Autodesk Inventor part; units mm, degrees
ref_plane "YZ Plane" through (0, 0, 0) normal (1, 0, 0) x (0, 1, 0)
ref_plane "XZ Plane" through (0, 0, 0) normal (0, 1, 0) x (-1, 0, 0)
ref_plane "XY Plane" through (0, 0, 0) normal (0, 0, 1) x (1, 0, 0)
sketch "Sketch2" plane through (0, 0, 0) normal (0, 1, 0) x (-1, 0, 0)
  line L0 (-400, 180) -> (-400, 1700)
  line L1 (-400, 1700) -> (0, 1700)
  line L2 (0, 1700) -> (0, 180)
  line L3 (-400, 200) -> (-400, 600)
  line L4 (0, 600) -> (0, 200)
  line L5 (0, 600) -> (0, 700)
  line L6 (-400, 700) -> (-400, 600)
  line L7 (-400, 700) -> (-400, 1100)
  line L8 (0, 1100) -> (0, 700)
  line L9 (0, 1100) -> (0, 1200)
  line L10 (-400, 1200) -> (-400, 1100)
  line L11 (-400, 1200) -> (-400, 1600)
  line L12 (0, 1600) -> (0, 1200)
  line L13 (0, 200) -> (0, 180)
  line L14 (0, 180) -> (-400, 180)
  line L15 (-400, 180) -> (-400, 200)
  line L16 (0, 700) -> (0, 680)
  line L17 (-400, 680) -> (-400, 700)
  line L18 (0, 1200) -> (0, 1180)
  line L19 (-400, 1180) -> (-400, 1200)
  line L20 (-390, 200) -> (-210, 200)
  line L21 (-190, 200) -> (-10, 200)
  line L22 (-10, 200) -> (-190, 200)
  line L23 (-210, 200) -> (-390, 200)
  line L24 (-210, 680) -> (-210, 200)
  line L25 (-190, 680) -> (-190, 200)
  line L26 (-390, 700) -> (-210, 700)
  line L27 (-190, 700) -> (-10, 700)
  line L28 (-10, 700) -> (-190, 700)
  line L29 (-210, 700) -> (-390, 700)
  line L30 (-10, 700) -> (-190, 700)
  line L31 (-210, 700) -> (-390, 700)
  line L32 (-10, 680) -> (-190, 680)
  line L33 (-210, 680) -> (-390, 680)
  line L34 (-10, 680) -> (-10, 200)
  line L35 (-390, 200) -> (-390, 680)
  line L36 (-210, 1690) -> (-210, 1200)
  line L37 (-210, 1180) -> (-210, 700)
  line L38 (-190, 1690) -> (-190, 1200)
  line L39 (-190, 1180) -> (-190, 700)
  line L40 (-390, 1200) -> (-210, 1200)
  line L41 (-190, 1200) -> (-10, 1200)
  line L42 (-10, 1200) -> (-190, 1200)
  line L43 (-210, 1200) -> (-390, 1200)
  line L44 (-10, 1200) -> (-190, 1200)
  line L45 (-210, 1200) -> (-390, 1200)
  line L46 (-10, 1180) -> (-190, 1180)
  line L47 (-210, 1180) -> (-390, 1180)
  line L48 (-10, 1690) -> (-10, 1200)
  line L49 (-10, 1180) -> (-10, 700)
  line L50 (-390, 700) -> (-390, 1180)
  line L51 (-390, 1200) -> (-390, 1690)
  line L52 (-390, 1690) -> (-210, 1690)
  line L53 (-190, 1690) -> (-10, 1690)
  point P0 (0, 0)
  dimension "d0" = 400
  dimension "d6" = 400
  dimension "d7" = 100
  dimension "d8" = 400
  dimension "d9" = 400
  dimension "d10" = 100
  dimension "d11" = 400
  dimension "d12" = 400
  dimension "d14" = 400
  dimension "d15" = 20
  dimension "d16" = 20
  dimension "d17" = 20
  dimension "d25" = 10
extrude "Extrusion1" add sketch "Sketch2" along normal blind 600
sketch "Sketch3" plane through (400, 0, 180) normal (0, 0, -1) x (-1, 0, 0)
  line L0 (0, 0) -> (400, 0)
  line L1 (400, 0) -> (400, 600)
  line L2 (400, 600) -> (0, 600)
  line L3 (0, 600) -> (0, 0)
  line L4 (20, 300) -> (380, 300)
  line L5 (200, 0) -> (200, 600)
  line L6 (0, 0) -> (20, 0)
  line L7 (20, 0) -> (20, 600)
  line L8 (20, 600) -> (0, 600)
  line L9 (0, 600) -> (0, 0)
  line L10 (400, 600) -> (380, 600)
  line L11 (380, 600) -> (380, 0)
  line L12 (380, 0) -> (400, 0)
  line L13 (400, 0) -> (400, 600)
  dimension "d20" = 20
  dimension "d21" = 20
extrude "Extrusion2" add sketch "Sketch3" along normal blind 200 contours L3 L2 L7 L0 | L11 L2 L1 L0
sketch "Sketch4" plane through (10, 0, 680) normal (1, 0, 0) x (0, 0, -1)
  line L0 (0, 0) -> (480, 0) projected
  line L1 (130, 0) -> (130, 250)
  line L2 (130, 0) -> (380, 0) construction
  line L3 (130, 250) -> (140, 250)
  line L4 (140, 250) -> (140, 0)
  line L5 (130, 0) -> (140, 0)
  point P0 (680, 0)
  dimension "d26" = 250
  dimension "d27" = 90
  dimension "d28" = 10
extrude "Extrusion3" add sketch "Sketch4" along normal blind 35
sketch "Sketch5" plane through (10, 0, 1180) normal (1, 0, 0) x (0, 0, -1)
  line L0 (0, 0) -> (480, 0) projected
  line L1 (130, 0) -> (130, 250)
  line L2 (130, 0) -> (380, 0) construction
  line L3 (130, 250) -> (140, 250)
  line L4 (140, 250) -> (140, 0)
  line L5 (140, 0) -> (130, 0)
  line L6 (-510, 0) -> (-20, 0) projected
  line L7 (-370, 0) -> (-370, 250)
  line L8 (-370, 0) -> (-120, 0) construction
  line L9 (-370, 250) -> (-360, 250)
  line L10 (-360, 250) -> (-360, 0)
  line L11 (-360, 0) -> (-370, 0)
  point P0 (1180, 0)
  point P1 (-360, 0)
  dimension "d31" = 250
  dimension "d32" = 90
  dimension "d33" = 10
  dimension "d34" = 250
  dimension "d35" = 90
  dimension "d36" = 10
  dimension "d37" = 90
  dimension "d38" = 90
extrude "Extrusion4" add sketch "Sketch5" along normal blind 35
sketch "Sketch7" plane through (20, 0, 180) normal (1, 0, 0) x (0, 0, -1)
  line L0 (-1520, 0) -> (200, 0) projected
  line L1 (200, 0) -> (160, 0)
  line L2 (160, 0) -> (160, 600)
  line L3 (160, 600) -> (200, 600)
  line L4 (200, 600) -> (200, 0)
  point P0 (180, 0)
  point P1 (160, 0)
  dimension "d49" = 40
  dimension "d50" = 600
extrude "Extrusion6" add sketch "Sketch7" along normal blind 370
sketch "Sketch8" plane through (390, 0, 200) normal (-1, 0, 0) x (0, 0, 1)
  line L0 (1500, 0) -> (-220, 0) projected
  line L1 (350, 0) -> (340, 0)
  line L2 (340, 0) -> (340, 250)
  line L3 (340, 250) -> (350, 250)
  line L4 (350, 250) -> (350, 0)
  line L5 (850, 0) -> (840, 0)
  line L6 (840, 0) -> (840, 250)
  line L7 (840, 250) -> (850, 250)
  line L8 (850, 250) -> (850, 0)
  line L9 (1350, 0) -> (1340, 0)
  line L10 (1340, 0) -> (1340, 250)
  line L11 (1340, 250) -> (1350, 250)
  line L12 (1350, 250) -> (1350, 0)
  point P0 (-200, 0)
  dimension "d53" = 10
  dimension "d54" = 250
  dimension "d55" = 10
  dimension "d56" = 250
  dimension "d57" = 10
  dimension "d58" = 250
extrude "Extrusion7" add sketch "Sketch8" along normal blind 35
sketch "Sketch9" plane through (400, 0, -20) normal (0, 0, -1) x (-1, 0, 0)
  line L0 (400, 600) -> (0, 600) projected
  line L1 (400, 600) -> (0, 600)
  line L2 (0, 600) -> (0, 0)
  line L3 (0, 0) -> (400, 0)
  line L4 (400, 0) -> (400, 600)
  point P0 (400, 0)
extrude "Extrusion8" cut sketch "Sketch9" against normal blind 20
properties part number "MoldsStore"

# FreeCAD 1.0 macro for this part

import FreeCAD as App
import Part
import Sketcher
from FreeCAD import Vector


def add_polygon(sketch, points):
    """Adds a closed chain of lines whose ends are joined by coincident constraints."""
    first, n = sketch.GeometryCount, len(points)
    for a, b in zip(points, points[1:] + points[:1]):
        sketch.addGeometry(Part.LineSegment(App.Vector(*a, 0), App.Vector(*b, 0)), False)
    for i in range(n):
        sketch.addConstraint(Sketcher.Constraint("Coincident", first + i, 2, first + (i + 1) % n, 1))

doc = App.newDocument("Part")
body = doc.addObject("PartDesign::Body", "Body")

# Sketch on XZ plane
sketch1 = doc.addObject("Sketcher::SketchObject", "Sketch")
body.addObject(sketch1)
sketch1.AttachmentSupport = (doc.XZ_Plane, [""])
sketch1.MapMode = "FlatFace"
add_polygon(sketch1, [(400, 1700), (400, 180), (0, 180), (0, 1700)])  # lines 0-3
add_polygon(sketch1, [(210, 200), (390, 200), (390, 680), (210, 680)])  # lines 4-7
add_polygon(sketch1, [(10, 200), (190, 200), (190, 680), (10, 680)])  # lines 8-11
add_polygon(sketch1, [(210, 700), (390, 700), (390, 1180), (210, 1180)])  # lines 12-15
add_polygon(sketch1, [(390, 1690), (210, 1690), (210, 1200), (390, 1200)])  # lines 16-19
add_polygon(sketch1, [(10, 700), (190, 700), (190, 1180), (10, 1180)])  # lines 20-23
add_polygon(sketch1, [(190, 1200), (190, 1690), (10, 1690), (10, 1200)])  # lines 24-27
sketch1.addConstraint([
    Sketcher.Constraint("Vertical", 0),
    Sketcher.Constraint("Horizontal", 1),
    Sketcher.Constraint("Vertical", 2),
    Sketcher.Constraint("Horizontal", 3),
    Sketcher.Constraint("Horizontal", 4),
    Sketcher.Constraint("Vertical", 5),
    Sketcher.Constraint("Horizontal", 6),
    Sketcher.Constraint("Vertical", 7),
    Sketcher.Constraint("Horizontal", 8),
    Sketcher.Constraint("Vertical", 9),
    Sketcher.Constraint("Horizontal", 10),
    Sketcher.Constraint("Vertical", 11),
    Sketcher.Constraint("Horizontal", 12),
    Sketcher.Constraint("Vertical", 13),
    Sketcher.Constraint("Horizontal", 14),
    Sketcher.Constraint("Vertical", 15),
    Sketcher.Constraint("Horizontal", 16),
    Sketcher.Constraint("Vertical", 17),
    Sketcher.Constraint("Horizontal", 18),
    Sketcher.Constraint("Vertical", 19),
    Sketcher.Constraint("Horizontal", 20),
    Sketcher.Constraint("Vertical", 21),
    Sketcher.Constraint("Horizontal", 22),
    Sketcher.Constraint("Vertical", 23),
    Sketcher.Constraint("Vertical", 24),
    Sketcher.Constraint("Horizontal", 25),
    Sketcher.Constraint("Vertical", 26),
    Sketcher.Constraint("Horizontal", 27),
    Sketcher.Constraint("PointOnObject", 1, 2, -2),
    Sketcher.Constraint("Horizontal", 7, 2, 8, 2),
    Sketcher.Constraint("Horizontal", 6, 2, 9, 2),
    Sketcher.Constraint("Horizontal", 15, 2, 20, 2),
    Sketcher.Constraint("Horizontal", 14, 2, 21, 2),
    Sketcher.Constraint("Horizontal", 19, 2, 24, 2),
    Sketcher.Constraint("Horizontal", 18, 2, 26, 2),
    Sketcher.Constraint("Vertical", 5, 2, 12, 2),
    Sketcher.Constraint("Vertical", 7, 2, 14, 2),
    Sketcher.Constraint("Vertical", 15, 2, 16, 2),
    Sketcher.Constraint("Vertical", 13, 2, 18, 2),
    Sketcher.Constraint("Vertical", 9, 2, 20, 2),
    Sketcher.Constraint("Vertical", 11, 2, 22, 2),
    Sketcher.Constraint("Vertical", 21, 2, 24, 2),
    Sketcher.Constraint("Vertical", 23, 2, 25, 2),
    Sketcher.Constraint("Equal", 6, 8),
    Sketcher.Constraint("Equal", 11, 13),
    Sketcher.Constraint("DistanceX", 1, 2, 1, 1, 400.0),
    Sketcher.Constraint("DistanceX", -1, 1, 10, 2, 10.0),
    Sketcher.Constraint("DistanceX", 4, 2, 0, 2, 10.0),
    Sketcher.Constraint("DistanceY", 0, 2, 4, 2, 20.0),
    Sketcher.Constraint("DistanceX", 8, 2, 7, 2, 20.0),
    Sketcher.Constraint("DistanceY", 5, 2, 12, 2, 20.0),
    Sketcher.Constraint("DistanceY", 16, 2, 3, 2, 10.0),
    Sketcher.Constraint("DistanceY", 14, 2, 17, 2, 20.0),
    Sketcher.Constraint("DistanceY", 0, 2, 0, 1, 1520.0),
    Sketcher.Constraint("DistanceY", 5, 1, 5, 2, 480.0),
    Sketcher.Constraint("DistanceY", -1, 1, 0, 2, 180.0),
])
pad1 = doc.addObject("PartDesign::Pad", "Pad")
body.addObject(pad1)
pad1.Profile = sketch1
pad1.Length = 600
pad1.Reversed = True

# Sketch on XY plane
sketch2 = doc.addObject("Sketcher::SketchObject", "Sketch001")
body.addObject(sketch2)
sketch2.AttachmentSupport = (doc.XY_Plane, [""])
sketch2.MapMode = "FlatFace"
sketch2.AttachmentOffset = App.Placement(Vector(0, 0, 180), App.Rotation())
add_polygon(sketch2, [(400, 600), (400, 0), (380, 0), (380, 600)])  # lines 0-3
add_polygon(sketch2, [(20, 600), (20, 0), (0, 0), (0, 600)])  # lines 4-7
sketch2.addConstraint([
    Sketcher.Constraint("Vertical", 0),
    Sketcher.Constraint("Horizontal", 1),
    Sketcher.Constraint("Vertical", 2),
    Sketcher.Constraint("Horizontal", 3),
    Sketcher.Constraint("Vertical", 4),
    Sketcher.Constraint("Horizontal", 5),
    Sketcher.Constraint("Vertical", 6),
    Sketcher.Constraint("Horizontal", 7),
    Sketcher.Constraint("Coincident", 5, 2, -1, 1),
    Sketcher.Constraint("PointOnObject", 0, 2, -1),
    Sketcher.Constraint("Horizontal", 3, 2, 6, 2),
    Sketcher.Constraint("Equal", 3, 5),
    Sketcher.Constraint("DistanceX", 1, 2, 1, 1, 20.0),
    Sketcher.Constraint("DistanceY", 0, 2, 0, 1, 600.0),
    Sketcher.Constraint("DistanceX", -1, 1, 0, 2, 400.0),
])
pad2 = doc.addObject("PartDesign::Pad", "Pad001")
body.addObject(pad2)
pad2.Profile = sketch2
pad2.Length = 200
pad2.Reversed = True

# Sketch on YZ plane
sketch3 = doc.addObject("Sketcher::SketchObject", "Sketch002")
body.addObject(sketch3)
sketch3.AttachmentSupport = (doc.YZ_Plane, [""])
sketch3.MapMode = "FlatFace"
sketch3.AttachmentOffset = App.Placement(Vector(0, 0, 10), App.Rotation())
add_polygon(sketch3, [(250, 550), (0, 550), (0, 540), (250, 540)])  # lines 0-3
sketch3.addConstraint([
    Sketcher.Constraint("Horizontal", 0),
    Sketcher.Constraint("Vertical", 1),
    Sketcher.Constraint("Horizontal", 2),
    Sketcher.Constraint("Vertical", 3),
    Sketcher.Constraint("PointOnObject", 0, 2, -2),
    Sketcher.Constraint("DistanceX", 0, 2, 0, 1, 250.0),
    Sketcher.Constraint("DistanceY", 1, 2, 1, 1, 10.0),
    Sketcher.Constraint("DistanceY", -1, 1, 0, 2, 550.0),
])
pad3 = doc.addObject("PartDesign::Pad", "Pad002")
body.addObject(pad3)
pad3.Profile = sketch3
pad3.Length = 35

# Sketch on YZ plane
sketch4 = doc.addObject("Sketcher::SketchObject", "Sketch003")
body.addObject(sketch4)
sketch4.AttachmentSupport = (doc.YZ_Plane, [""])
sketch4.MapMode = "FlatFace"
sketch4.AttachmentOffset = App.Placement(Vector(0, 0, 10), App.Rotation())
add_polygon(sketch4, [(250, 1050), (0, 1050), (0, 1040), (250, 1040)])  # lines 0-3
add_polygon(sketch4, [(250, 1550), (0, 1550), (0, 1540), (250, 1540)])  # lines 4-7
sketch4.addConstraint([
    Sketcher.Constraint("Horizontal", 0),
    Sketcher.Constraint("Vertical", 1),
    Sketcher.Constraint("Horizontal", 2),
    Sketcher.Constraint("Vertical", 3),
    Sketcher.Constraint("Horizontal", 4),
    Sketcher.Constraint("Vertical", 5),
    Sketcher.Constraint("Horizontal", 6),
    Sketcher.Constraint("Vertical", 7),
    Sketcher.Constraint("PointOnObject", 0, 2, -2),
    Sketcher.Constraint("PointOnObject", 4, 2, -2),
    Sketcher.Constraint("Vertical", 3, 2, 6, 2),
    Sketcher.Constraint("Equal", 3, 5),
    Sketcher.Constraint("DistanceX", 0, 2, 0, 1, 250.0),
    Sketcher.Constraint("DistanceY", 1, 2, 1, 1, 10.0),
    Sketcher.Constraint("DistanceY", -1, 1, 0, 2, 1050.0),
    Sketcher.Constraint("DistanceY", -1, 1, 4, 2, 1550.0),
])
pad4 = doc.addObject("PartDesign::Pad", "Pad003")
body.addObject(pad4)
pad4.Profile = sketch4
pad4.Length = 35

# Sketch on YZ plane
sketch5 = doc.addObject("Sketcher::SketchObject", "Sketch004")
body.addObject(sketch5)
sketch5.AttachmentSupport = (doc.YZ_Plane, [""])
sketch5.MapMode = "FlatFace"
sketch5.AttachmentOffset = App.Placement(Vector(0, 0, 20), App.Rotation())
add_polygon(sketch5, [(600, 20), (0, 20), (0, -20), (600, -20)])  # lines 0-3
sketch5.addConstraint([
    Sketcher.Constraint("Horizontal", 0),
    Sketcher.Constraint("Vertical", 1),
    Sketcher.Constraint("Horizontal", 2),
    Sketcher.Constraint("Vertical", 3),
    Sketcher.Constraint("Symmetric", 0, 2, 1, 2, -1, 1),
    Sketcher.Constraint("DistanceX", 0, 2, 0, 1, 600.0),
    Sketcher.Constraint("DistanceY", 1, 2, 1, 1, 40.0),
])
pad5 = doc.addObject("PartDesign::Pad", "Pad004")
body.addObject(pad5)
pad5.Profile = sketch5
pad5.Length = 370

# Sketch on YZ plane
sketch6 = doc.addObject("Sketcher::SketchObject", "Sketch005")
body.addObject(sketch6)
sketch6.AttachmentSupport = (doc.YZ_Plane, [""])
sketch6.MapMode = "FlatFace"
sketch6.AttachmentOffset = App.Placement(Vector(0, 0, 390), App.Rotation())
add_polygon(sketch6, [(0, 540), (0, 550), (250, 550), (250, 540)])  # lines 0-3
add_polygon(sketch6, [(0, 1040), (0, 1050), (250, 1050), (250, 1040)])  # lines 4-7
add_polygon(sketch6, [(0, 1540), (0, 1550), (250, 1550), (250, 1540)])  # lines 8-11
sketch6.addConstraint([
    Sketcher.Constraint("Vertical", 0),
    Sketcher.Constraint("Horizontal", 1),
    Sketcher.Constraint("Vertical", 2),
    Sketcher.Constraint("Horizontal", 3),
    Sketcher.Constraint("Vertical", 4),
    Sketcher.Constraint("Horizontal", 5),
    Sketcher.Constraint("Vertical", 6),
    Sketcher.Constraint("Horizontal", 7),
    Sketcher.Constraint("Vertical", 8),
    Sketcher.Constraint("Horizontal", 9),
    Sketcher.Constraint("Vertical", 10),
    Sketcher.Constraint("Horizontal", 11),
    Sketcher.Constraint("PointOnObject", 0, 2, -2),
    Sketcher.Constraint("PointOnObject", 4, 2, -2),
    Sketcher.Constraint("PointOnObject", 8, 2, -2),
    Sketcher.Constraint("Vertical", 2, 2, 5, 2),
    Sketcher.Constraint("Vertical", 6, 2, 9, 2),
    Sketcher.Constraint("Equal", 2, 4),
    Sketcher.Constraint("Equal", 6, 8),
    Sketcher.Constraint("DistanceX", 1, 1, 1, 2, 250.0),
    Sketcher.Constraint("DistanceY", 0, 1, 0, 2, 10.0),
    Sketcher.Constraint("DistanceY", -1, 1, 0, 2, 550.0),
    Sketcher.Constraint("DistanceY", -1, 1, 4, 2, 1050.0),
    Sketcher.Constraint("DistanceY", -1, 1, 8, 2, 1550.0),
])
pad6 = doc.addObject("PartDesign::Pad", "Pad005")
body.addObject(pad6)
pad6.Profile = sketch6
pad6.Length = 35
pad6.Reversed = True

# Sketch on XY plane
sketch7 = doc.addObject("Sketcher::SketchObject", "Sketch006")
body.addObject(sketch7)
sketch7.AttachmentSupport = (doc.XY_Plane, [""])
sketch7.MapMode = "FlatFace"
sketch7.AttachmentOffset = App.Placement(Vector(0, 0, -20), App.Rotation())
add_polygon(sketch7, [(0, 0), (0, 600), (400, 600), (400, 0)])  # lines 0-3
sketch7.addConstraint([
    Sketcher.Constraint("Vertical", 0),
    Sketcher.Constraint("Horizontal", 1),
    Sketcher.Constraint("Vertical", 2),
    Sketcher.Constraint("Horizontal", 3),
    Sketcher.Constraint("Coincident", 3, 2, -1, 1),
    Sketcher.Constraint("DistanceX", 1, 1, 1, 2, 400.0),
    Sketcher.Constraint("DistanceY", 0, 1, 0, 2, 600.0),
])
pocket1 = doc.addObject("PartDesign::Pocket", "Pocket")
body.addObject(pocket1)
pocket1.Profile = sketch7
pocket1.Length = 20
pocket1.Reversed = True

doc.recompute()
